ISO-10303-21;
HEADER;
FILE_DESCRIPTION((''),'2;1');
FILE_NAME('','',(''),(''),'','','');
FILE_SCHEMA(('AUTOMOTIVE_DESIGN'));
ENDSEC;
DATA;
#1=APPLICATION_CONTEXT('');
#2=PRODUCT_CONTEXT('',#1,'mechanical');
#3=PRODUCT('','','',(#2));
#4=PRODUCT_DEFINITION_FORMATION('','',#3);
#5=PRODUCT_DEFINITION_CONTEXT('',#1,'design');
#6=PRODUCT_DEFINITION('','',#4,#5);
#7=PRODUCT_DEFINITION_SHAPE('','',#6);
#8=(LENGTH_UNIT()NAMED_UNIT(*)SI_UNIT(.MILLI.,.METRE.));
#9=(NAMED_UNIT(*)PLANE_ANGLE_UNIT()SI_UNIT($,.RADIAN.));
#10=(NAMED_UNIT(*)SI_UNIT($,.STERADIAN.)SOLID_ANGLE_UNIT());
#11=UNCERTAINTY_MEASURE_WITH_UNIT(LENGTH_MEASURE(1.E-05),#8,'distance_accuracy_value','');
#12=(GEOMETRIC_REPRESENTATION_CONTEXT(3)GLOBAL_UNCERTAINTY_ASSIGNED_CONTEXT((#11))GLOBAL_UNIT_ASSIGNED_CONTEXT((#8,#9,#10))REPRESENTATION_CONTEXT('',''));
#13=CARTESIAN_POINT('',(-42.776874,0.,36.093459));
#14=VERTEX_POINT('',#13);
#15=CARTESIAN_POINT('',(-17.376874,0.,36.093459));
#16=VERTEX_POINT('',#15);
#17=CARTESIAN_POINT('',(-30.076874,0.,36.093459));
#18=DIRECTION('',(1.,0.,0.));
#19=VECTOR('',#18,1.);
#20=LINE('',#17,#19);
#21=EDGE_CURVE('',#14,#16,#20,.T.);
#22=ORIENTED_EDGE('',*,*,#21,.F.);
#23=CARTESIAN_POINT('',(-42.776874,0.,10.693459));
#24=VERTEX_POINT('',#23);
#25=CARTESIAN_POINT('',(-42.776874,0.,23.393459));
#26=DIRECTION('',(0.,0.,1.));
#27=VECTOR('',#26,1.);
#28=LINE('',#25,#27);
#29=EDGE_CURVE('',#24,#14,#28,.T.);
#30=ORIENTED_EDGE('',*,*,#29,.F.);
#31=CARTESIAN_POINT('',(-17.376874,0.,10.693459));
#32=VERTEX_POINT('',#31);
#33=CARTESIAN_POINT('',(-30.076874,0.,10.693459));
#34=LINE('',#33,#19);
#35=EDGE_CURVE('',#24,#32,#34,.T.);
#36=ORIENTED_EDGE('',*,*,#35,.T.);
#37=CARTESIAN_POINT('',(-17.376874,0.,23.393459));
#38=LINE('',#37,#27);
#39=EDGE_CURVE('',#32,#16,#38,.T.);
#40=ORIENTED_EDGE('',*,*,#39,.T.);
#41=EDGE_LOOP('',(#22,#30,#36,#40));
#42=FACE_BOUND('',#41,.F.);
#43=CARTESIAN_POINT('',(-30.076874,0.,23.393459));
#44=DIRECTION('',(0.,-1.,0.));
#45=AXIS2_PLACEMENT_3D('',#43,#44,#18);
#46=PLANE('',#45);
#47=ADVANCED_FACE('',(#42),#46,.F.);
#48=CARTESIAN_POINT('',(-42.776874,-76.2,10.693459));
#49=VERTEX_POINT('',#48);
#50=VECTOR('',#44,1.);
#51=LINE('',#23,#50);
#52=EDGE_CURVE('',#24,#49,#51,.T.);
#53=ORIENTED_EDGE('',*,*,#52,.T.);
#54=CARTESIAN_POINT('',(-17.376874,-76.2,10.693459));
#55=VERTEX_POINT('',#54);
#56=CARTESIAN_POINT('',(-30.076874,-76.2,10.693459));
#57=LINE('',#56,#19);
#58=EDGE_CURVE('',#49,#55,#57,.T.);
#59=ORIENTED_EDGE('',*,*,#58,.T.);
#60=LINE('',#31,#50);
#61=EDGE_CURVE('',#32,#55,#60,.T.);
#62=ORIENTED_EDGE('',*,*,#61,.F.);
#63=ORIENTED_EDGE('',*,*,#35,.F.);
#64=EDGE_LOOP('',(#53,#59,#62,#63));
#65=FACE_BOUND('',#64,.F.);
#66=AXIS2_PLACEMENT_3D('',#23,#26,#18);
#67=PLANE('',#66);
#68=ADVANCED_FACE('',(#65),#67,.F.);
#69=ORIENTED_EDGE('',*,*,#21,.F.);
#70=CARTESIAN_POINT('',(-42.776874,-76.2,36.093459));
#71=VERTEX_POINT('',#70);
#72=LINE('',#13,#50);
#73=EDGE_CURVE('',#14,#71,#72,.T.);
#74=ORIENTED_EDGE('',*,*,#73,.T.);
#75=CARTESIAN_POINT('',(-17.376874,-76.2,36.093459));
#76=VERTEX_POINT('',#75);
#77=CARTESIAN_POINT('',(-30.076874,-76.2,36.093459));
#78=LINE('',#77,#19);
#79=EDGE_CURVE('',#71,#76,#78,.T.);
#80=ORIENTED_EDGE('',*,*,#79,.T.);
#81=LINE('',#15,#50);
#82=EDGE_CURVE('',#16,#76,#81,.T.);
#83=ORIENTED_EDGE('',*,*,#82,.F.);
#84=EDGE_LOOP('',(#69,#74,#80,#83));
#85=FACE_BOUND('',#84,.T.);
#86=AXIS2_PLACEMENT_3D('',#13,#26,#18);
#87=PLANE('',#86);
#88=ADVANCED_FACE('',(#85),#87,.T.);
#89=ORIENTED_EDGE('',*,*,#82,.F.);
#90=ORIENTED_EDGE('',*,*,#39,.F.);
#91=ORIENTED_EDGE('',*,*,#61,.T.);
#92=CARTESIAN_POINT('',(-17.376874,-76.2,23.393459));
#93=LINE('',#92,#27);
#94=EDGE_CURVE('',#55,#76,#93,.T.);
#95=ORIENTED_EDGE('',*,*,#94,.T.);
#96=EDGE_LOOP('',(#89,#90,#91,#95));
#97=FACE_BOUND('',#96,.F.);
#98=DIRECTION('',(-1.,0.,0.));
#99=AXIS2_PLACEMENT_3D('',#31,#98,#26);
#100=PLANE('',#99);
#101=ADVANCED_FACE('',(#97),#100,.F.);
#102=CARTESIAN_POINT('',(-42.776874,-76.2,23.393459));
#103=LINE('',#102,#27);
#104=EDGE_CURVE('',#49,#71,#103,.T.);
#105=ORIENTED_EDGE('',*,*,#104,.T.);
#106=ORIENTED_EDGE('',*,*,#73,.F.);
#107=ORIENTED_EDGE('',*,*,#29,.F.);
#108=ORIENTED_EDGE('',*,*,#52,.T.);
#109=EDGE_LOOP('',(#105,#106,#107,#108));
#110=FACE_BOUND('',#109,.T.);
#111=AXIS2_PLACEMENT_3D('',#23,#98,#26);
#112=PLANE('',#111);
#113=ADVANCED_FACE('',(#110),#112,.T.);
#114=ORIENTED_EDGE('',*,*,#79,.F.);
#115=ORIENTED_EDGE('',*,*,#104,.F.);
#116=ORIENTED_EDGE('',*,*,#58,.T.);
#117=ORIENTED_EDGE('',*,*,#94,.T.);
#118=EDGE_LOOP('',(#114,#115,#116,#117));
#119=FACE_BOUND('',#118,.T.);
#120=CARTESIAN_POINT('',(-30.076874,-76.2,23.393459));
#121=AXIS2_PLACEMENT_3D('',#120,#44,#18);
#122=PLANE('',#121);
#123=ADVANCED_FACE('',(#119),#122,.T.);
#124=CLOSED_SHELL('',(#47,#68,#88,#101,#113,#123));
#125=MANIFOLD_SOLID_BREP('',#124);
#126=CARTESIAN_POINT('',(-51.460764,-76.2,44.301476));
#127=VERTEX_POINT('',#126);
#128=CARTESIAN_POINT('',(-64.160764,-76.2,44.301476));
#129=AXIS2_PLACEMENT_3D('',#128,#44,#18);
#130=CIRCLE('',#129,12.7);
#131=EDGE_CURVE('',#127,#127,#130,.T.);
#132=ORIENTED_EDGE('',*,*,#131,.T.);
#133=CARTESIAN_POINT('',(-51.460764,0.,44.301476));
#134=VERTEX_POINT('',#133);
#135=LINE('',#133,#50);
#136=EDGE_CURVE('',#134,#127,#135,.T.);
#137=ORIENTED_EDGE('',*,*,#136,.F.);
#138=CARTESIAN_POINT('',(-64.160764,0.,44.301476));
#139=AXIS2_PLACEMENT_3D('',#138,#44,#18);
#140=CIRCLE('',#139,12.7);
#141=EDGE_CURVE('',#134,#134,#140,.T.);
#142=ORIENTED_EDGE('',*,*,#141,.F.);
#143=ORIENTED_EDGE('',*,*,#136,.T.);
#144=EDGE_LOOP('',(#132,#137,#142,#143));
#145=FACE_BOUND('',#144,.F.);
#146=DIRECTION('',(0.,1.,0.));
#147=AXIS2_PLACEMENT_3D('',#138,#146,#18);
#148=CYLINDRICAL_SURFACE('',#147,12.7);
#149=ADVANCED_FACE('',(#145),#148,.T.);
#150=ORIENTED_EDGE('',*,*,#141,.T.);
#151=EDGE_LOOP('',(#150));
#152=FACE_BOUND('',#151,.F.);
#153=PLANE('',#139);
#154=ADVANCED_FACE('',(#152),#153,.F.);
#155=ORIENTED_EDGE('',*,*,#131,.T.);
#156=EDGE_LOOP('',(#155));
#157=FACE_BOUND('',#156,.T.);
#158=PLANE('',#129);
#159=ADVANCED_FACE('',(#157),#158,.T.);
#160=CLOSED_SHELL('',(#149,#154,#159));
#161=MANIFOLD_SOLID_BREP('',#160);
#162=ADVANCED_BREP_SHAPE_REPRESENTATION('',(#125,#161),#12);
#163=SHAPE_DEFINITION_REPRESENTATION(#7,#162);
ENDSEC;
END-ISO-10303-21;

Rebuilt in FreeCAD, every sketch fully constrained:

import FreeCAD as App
import Part
import Sketcher

V = App.Vector
Q = App.Units.Quantity


def add_polygon(sketch, points):
    """Adds a closed chain of lines whose ends are joined by coincident constraints."""
    first, n = sketch.GeometryCount, len(points)
    for a, b in zip(points, points[1:] + points[:1]):
        sketch.addGeometry(Part.LineSegment(App.Vector(*a, 0), App.Vector(*b, 0)), False)
    for i in range(n):
        sketch.addConstraint(Sketcher.Constraint("Coincident", first + i, 2, first + (i + 1) % n, 1))

doc = App.newDocument("Part")
body = doc.addObject("PartDesign::Body", "Body")
body.AllowCompound = True

sketch1 = doc.addObject("Sketcher::SketchObject", "Sketch")
body.addObject(sketch1)
sketch1.AttachmentSupport = (doc.XZ_Plane, [""])
sketch1.MapMode = "FlatFace"
sketch1.addGeometry(Part.Circle(V(-64, 44, 0), V(0, 0, 1), 13), False)
add_polygon(sketch1, [(-43, 36), (-43, 11), (-17, 11), (-17, 36)])
sketch1.addConstraint(Sketcher.Constraint("Vertical", 1))
sketch1.addConstraint(Sketcher.Constraint("Horizontal", 2))
sketch1.addConstraint(Sketcher.Constraint("Vertical", 3))
sketch1.addConstraint(Sketcher.Constraint("Horizontal", 4))
sketch1.addConstraint(Sketcher.Constraint("Equal", 4, 1))
sketch1.addConstraint(Sketcher.Constraint("Diameter", 0, Q("1 in")))
sketch1.addConstraint(Sketcher.Constraint("DistanceX", 2, 1, 2, 2, Q("1 in")))
sketch1.addConstraint(Sketcher.Constraint("DistanceY", -1, 1, 1, 2, Q("10.693459 mm")))
sketch1.addConstraint(Sketcher.Constraint("DistanceX", 0, 3, 1, 2, Q("21.38389 mm")))
sketch1.addConstraint(Sketcher.Constraint("DistanceX", 0, 3, -1, 1, Q("64.160764 mm")))
sketch1.addConstraint(Sketcher.Constraint("DistanceY", -1, 1, 0, 3, Q("44.301476 mm")))
pad1 = doc.addObject("PartDesign::Pad", "Pad")
body.addObject(pad1)
pad1.Profile = sketch1
pad1.Length = Q("3 in")

doc.recompute()
